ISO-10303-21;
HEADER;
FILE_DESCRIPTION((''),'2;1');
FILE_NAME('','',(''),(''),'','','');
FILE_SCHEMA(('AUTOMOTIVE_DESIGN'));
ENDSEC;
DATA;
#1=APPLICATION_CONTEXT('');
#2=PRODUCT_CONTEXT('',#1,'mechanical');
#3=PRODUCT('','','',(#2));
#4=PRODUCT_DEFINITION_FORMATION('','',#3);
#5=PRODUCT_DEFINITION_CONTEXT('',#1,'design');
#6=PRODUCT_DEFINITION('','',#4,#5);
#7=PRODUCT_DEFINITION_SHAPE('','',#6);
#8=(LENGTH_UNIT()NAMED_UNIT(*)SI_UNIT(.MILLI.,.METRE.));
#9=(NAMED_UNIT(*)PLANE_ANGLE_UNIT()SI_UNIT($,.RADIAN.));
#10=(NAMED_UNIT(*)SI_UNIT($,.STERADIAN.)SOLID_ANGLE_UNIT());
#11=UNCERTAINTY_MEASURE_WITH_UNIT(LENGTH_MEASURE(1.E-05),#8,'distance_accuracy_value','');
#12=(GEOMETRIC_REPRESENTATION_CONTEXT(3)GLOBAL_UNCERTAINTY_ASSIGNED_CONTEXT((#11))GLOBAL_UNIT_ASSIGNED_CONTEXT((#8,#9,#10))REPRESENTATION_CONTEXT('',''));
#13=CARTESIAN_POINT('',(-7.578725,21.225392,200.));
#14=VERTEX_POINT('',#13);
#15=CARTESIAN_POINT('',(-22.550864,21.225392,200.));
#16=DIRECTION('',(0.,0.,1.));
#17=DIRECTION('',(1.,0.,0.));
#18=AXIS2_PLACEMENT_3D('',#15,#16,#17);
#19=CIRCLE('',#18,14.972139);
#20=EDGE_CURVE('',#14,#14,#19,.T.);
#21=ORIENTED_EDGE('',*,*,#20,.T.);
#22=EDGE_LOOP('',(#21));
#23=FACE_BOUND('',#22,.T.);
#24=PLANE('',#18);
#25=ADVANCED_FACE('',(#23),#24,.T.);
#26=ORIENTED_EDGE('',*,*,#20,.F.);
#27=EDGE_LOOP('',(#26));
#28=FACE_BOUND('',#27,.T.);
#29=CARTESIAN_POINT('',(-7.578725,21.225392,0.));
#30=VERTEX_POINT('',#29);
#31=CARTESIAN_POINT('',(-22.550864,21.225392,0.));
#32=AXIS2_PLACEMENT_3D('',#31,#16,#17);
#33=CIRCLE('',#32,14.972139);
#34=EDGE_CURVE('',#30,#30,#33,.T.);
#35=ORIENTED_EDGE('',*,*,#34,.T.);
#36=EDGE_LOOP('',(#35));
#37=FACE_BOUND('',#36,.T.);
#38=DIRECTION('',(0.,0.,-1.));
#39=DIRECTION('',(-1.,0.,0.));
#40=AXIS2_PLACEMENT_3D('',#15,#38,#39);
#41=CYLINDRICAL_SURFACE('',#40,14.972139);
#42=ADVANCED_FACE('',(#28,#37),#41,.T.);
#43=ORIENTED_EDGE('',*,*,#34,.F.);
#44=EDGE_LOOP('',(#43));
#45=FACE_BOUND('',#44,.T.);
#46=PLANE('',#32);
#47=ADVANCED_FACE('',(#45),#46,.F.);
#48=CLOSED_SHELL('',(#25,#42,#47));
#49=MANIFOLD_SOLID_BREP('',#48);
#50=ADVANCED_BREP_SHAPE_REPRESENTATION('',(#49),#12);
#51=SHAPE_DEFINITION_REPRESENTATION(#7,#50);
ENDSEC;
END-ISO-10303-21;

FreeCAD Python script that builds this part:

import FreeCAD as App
import Part
import Sketcher
from FreeCAD import Vector
Q = App.Units.Quantity

doc = App.newDocument("Part")
body = doc.addObject("PartDesign::Body", "Body")

sketch1 = doc.addObject("Sketcher::SketchObject", "Sketch")
body.addObject(sketch1)
sketch1.AttachmentSupport = (doc.XY_Plane, [""])
sketch1.MapMode = "FlatFace"
sketch1.addGeometry(Part.Circle(Vector(-23, 21, 0), Vector(0, 0, 1), 15), False)
sketch1.addConstraint([
    Sketcher.Constraint("Diameter", 0, Q("29.944278 mm")),
    Sketcher.Constraint("DistanceX", 0, 3, -1, 1, Q("22.550864 mm")),
    Sketcher.Constraint("DistanceY", -1, 1, 0, 3, Q("21.225392 mm")),
])
pad1 = doc.addObject("PartDesign::Pad", "Pad")
body.addObject(pad1)
pad1.Profile = sketch1
pad1.Length = 200

doc.recompute()
